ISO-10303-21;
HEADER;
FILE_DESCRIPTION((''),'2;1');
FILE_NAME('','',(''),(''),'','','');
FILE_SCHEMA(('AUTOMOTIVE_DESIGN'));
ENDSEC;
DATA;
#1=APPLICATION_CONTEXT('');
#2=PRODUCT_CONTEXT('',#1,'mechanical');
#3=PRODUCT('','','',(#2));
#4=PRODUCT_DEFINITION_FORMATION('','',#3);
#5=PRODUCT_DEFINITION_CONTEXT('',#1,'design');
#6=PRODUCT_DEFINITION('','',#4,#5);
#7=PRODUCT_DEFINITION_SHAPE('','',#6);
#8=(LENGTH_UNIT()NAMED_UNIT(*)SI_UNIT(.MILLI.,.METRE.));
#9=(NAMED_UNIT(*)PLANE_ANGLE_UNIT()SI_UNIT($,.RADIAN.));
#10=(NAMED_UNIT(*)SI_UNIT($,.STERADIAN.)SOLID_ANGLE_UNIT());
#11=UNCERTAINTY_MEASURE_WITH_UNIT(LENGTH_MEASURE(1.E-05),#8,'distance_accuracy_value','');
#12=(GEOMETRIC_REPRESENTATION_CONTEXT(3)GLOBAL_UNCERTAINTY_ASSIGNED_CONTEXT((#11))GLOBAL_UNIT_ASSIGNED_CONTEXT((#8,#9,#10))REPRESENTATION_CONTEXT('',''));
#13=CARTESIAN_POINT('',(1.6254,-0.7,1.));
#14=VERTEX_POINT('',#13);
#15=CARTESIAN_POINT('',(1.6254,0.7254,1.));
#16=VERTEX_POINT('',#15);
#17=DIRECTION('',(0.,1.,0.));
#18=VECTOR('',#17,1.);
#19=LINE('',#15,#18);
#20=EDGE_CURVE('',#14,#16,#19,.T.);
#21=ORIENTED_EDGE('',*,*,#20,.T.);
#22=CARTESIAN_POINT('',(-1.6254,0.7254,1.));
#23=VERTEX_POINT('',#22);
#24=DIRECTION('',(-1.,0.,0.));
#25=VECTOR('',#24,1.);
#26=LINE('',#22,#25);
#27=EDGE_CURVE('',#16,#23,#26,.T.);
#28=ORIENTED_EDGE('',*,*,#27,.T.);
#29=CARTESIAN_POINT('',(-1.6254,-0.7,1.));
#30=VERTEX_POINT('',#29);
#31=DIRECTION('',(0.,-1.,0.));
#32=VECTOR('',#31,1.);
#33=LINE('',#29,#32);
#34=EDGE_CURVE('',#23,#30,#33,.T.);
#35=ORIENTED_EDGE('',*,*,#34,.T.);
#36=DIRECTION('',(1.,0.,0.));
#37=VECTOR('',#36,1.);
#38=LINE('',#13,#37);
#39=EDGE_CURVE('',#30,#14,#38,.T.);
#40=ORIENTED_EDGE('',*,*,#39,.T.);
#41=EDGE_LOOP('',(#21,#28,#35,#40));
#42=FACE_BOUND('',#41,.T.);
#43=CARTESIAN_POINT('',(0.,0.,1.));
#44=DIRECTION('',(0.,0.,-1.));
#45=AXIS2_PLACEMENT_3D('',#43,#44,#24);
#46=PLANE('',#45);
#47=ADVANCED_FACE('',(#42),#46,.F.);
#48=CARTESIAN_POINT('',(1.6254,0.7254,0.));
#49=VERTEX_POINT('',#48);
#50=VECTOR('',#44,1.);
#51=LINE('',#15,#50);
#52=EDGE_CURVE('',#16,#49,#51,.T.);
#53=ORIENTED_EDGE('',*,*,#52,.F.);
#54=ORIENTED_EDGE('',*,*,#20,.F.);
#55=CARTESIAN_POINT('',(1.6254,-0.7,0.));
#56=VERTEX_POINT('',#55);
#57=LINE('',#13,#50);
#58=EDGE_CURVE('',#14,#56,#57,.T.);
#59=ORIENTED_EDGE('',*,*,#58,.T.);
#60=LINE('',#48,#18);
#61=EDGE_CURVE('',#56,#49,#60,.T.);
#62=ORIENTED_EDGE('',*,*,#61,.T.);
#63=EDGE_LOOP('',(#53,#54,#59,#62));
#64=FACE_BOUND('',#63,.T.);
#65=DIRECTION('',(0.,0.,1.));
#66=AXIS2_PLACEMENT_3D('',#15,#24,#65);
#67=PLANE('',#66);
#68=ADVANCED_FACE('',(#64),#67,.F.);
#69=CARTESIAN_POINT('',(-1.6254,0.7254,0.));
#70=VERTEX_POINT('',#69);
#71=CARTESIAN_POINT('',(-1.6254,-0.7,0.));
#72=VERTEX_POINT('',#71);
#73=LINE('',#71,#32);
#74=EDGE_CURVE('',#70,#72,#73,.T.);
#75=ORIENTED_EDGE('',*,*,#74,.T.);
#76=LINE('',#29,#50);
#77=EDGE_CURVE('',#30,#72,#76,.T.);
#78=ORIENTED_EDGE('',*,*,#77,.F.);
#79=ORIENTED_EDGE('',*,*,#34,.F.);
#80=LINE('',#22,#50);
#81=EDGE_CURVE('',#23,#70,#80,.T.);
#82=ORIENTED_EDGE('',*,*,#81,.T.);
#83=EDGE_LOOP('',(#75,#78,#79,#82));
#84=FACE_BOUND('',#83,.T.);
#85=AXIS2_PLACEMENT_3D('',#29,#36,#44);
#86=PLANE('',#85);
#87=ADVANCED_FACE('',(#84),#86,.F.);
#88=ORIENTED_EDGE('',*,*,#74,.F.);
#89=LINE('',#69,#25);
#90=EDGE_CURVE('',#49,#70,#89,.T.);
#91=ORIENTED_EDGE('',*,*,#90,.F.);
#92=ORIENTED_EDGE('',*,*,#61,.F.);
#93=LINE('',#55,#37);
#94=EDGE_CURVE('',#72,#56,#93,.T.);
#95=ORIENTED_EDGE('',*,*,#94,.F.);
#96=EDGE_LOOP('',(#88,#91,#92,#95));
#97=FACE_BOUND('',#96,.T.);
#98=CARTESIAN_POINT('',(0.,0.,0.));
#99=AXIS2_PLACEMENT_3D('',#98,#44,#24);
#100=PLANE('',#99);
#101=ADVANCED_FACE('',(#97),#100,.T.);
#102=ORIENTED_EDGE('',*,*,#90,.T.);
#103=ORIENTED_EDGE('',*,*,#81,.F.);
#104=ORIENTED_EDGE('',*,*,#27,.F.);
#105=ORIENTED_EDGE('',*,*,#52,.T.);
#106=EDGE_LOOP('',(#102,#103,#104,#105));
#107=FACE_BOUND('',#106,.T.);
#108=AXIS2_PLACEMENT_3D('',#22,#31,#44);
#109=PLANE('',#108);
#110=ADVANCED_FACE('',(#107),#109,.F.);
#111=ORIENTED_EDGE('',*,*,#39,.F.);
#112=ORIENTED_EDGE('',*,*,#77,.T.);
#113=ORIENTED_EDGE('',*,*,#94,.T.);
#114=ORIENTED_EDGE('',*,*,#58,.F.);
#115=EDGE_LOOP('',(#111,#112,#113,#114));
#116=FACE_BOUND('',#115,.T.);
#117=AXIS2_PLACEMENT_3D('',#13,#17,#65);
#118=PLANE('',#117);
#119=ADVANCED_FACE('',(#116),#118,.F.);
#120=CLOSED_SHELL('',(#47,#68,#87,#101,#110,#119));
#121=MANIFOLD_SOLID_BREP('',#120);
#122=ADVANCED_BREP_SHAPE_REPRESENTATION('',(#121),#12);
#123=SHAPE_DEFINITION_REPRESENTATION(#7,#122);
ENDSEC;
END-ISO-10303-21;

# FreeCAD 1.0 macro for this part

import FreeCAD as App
import Part
import Sketcher
from FreeCAD import Vector
Q = App.Units.Quantity

doc = App.newDocument("Part")
params = doc.addObject("Spreadsheet::Sheet", "Params")
for row, (alias, value) in enumerate([
    ("pad1_length", "1 mm"),
], start=1):
    params.set(f"A{row}", alias)
    params.set(f"B{row}", "=" + value)
    params.setAlias(f"B{row}", alias)

body = doc.addObject("PartDesign::Body", "Body")

# Sketch on XY plane
sketch1 = body.newObject("Sketcher::SketchObject", "Sketch")
sketch1.AttachmentSupport = (doc.getObject("XY_Plane"), [""])
sketch1.MapMode = "FlatFace"
sketch1.addGeometry(Part.LineSegment(Vector(-1.6, 0.7, 0), Vector(-1.6, -0.7, 0)), False)
sketch1.addGeometry(Part.LineSegment(Vector(-1.6, -0.7, 0), Vector(1.6, -0.7, 0)), False)
sketch1.addGeometry(Part.LineSegment(Vector(1.6, -0.7, 0), Vector(1.6, 0.7, 0)), False)
sketch1.addGeometry(Part.LineSegment(Vector(1.6, 0.7, 0), Vector(-1.6, 0.7, 0)), False)
sketch1.addConstraint(Sketcher.Constraint("Coincident", 0, 2, 1, 1))
sketch1.addConstraint(Sketcher.Constraint("Coincident", 1, 2, 2, 1))
sketch1.addConstraint(Sketcher.Constraint("Coincident", 2, 2, 3, 1))
sketch1.addConstraint(Sketcher.Constraint("Coincident", 3, 2, 0, 1))
sketch1.addConstraint(Sketcher.Constraint("Vertical", 0))
sketch1.addConstraint(Sketcher.Constraint("Horizontal", 1))
sketch1.addConstraint(Sketcher.Constraint("Vertical", 2))
sketch1.addConstraint(Sketcher.Constraint("Horizontal", 3))
sketch1.addConstraint(Sketcher.Constraint("DistanceY", 0, 2, -1, 1, Q("0.7 mm")))
sketch1.addConstraint(Sketcher.Constraint("DistanceX", 1, 1, 1, 2, Q("3.2508 mm")))
sketch1.addConstraint(Sketcher.Constraint("DistanceY", 0, 2, 0, 1, Q("1.4254 mm")))
sketch1.addConstraint(Sketcher.Constraint("DistanceX", 0, 2, -1, 1, Q("1.6254 mm")))
pad1 = body.newObject("PartDesign::Pad", "Pad")
pad1.Profile = sketch1
pad1.setExpression("Length", "Params.pad1_length")

doc.recompute()
